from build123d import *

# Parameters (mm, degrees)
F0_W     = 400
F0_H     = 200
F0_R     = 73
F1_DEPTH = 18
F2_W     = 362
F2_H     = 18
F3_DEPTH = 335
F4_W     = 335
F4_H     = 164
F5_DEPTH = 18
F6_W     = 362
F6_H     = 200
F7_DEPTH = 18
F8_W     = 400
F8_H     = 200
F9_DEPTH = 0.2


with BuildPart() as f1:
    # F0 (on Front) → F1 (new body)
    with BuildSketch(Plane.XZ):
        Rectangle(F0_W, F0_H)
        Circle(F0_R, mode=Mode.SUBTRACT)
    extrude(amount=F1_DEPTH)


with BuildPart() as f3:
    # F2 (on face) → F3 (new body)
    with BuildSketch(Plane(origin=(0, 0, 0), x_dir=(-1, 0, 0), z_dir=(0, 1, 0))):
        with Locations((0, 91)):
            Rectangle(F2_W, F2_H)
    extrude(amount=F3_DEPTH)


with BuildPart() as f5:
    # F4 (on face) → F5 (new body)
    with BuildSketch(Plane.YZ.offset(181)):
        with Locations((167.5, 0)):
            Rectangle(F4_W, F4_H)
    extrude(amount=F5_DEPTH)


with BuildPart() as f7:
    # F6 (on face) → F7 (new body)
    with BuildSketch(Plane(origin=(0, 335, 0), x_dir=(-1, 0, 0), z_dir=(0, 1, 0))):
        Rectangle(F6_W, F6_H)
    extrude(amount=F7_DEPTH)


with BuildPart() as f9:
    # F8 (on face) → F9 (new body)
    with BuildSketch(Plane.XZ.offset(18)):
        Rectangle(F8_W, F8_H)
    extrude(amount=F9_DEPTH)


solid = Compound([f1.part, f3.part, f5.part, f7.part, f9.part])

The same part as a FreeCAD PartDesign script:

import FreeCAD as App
import Part
import Sketcher
from FreeCAD import Vector
Q = App.Units.Quantity

doc = App.newDocument("Part")
body = doc.addObject("PartDesign::Body", "Body")

# Sketch on XZ plane
sketch1 = body.newObject("Sketcher::SketchObject", "Sketch")
sketch1.AttachmentSupport = (doc.getObject("XZ_Plane"), [""])
sketch1.MapMode = "FlatFace"
sketch1.addGeometry(Part.LineSegment(Vector(-200, 100, 0), Vector(-200, -100, 0)), False)
sketch1.addGeometry(Part.LineSegment(Vector(-200, -100, 0), Vector(200, -100, 0)), False)
sketch1.addGeometry(Part.LineSegment(Vector(200, -100, 0), Vector(200, 100, 0)), False)
sketch1.addGeometry(Part.LineSegment(Vector(200, 100, 0), Vector(-200, 100, 0)), False)
sketch1.addGeometry(Part.Circle(Vector(0, 0, 0), Vector(0, 0, 1), 73), False)
sketch1.addConstraint(Sketcher.Constraint("Coincident", 0, 2, 1, 1))
sketch1.addConstraint(Sketcher.Constraint("Coincident", 1, 2, 2, 1))
sketch1.addConstraint(Sketcher.Constraint("Coincident", 2, 2, 3, 1))
sketch1.addConstraint(Sketcher.Constraint("Coincident", 3, 2, 0, 1))
sketch1.addConstraint(Sketcher.Constraint("Vertical", 0))
sketch1.addConstraint(Sketcher.Constraint("Horizontal", 1))
sketch1.addConstraint(Sketcher.Constraint("Vertical", 2))
sketch1.addConstraint(Sketcher.Constraint("Horizontal", 3))
sketch1.addConstraint(Sketcher.Constraint("Coincident", 4, 3, -1, 1))
sketch1.addConstraint(Sketcher.Constraint("Symmetric", 0, 2, 2, 2, -1, 1))
sketch1.addConstraint(Sketcher.Constraint("Diameter", 4, Q("146 mm")))
sketch1.addConstraint(Sketcher.Constraint("DistanceX", 1, 1, 1, 2, Q("400 mm")))
sketch1.addConstraint(Sketcher.Constraint("DistanceY", 0, 2, 0, 1, Q("200 mm")))
pad1 = body.newObject("PartDesign::Pad", "Pad")
pad1.Profile = sketch1
pad1.Length = 18
body2 = doc.addObject("PartDesign::Body", "Body001")

# Sketch on XZ plane
sketch2 = body2.newObject("Sketcher::SketchObject", "Sketch001")
sketch2.AttachmentSupport = (doc.getObject("XZ_Plane001"), [""])
sketch2.MapMode = "FlatFace"
sketch2.addGeometry(Part.LineSegment(Vector(181, 100, 0), Vector(181, 82, 0)), False)
sketch2.addGeometry(Part.LineSegment(Vector(181, 82, 0), Vector(-181, 82, 0)), False)
sketch2.addGeometry(Part.LineSegment(Vector(-181, 82, 0), Vector(-181, 100, 0)), False)
sketch2.addGeometry(Part.LineSegment(Vector(-181, 100, 0), Vector(181, 100, 0)), False)
sketch2.addConstraint(Sketcher.Constraint("Coincident", 0, 2, 1, 1))
sketch2.addConstraint(Sketcher.Constraint("Coincident", 1, 2, 2, 1))
sketch2.addConstraint(Sketcher.Constraint("Coincident", 2, 2, 3, 1))
sketch2.addConstraint(Sketcher.Constraint("Coincident", 3, 2, 0, 1))
sketch2.addConstraint(Sketcher.Constraint("Vertical", 0))
sketch2.addConstraint(Sketcher.Constraint("Horizontal", 1))
sketch2.addConstraint(Sketcher.Constraint("Vertical", 2))
sketch2.addConstraint(Sketcher.Constraint("Horizontal", 3))
sketch2.addConstraint(Sketcher.Constraint("DistanceX", 1, 2, 1, 1, Q("362 mm")))
sketch2.addConstraint(Sketcher.Constraint("DistanceY", 0, 2, 0, 1, Q("18 mm")))
sketch2.addConstraint(Sketcher.Constraint("DistanceX", -1, 1, 0, 2, Q("181 mm")))
sketch2.addConstraint(Sketcher.Constraint("DistanceY", -1, 1, 0, 2, Q("82 mm")))
pad2 = body2.newObject("PartDesign::Pad", "Pad001")
pad2.Profile = sketch2
pad2.Length = 335
pad2.Reversed = True
body3 = doc.addObject("PartDesign::Body", "Body002")

# Sketch on YZ plane
sketch3 = body3.newObject("Sketcher::SketchObject", "Sketch002")
sketch3.AttachmentSupport = (doc.getObject("YZ_Plane002"), [""])
sketch3.MapMode = "FlatFace"
sketch3.AttachmentOffset = App.Placement(Vector(0, 0, 181), App.Rotation())
sketch3.addGeometry(Part.LineSegment(Vector(0, 82, 0), Vector(0, -82, 0)), False)
sketch3.addGeometry(Part.LineSegment(Vector(0, -82, 0), Vector(335, -82, 0)), False)
sketch3.addGeometry(Part.LineSegment(Vector(335, -82, 0), Vector(335, 82, 0)), False)
sketch3.addGeometry(Part.LineSegment(Vector(335, 82, 0), Vector(0, 82, 0)), False)
sketch3.addConstraint(Sketcher.Constraint("Coincident", 0, 2, 1, 1))
sketch3.addConstraint(Sketcher.Constraint("Coincident", 1, 2, 2, 1))
sketch3.addConstraint(Sketcher.Constraint("Coincident", 2, 2, 3, 1))
sketch3.addConstraint(Sketcher.Constraint("Coincident", 3, 2, 0, 1))
sketch3.addConstraint(Sketcher.Constraint("Vertical", 0))
sketch3.addConstraint(Sketcher.Constraint("Horizontal", 1))
sketch3.addConstraint(Sketcher.Constraint("Vertical", 2))
sketch3.addConstraint(Sketcher.Constraint("Horizontal", 3))
sketch3.addConstraint(Sketcher.Constraint("Symmetric", 0, 2, 3, 2, -1, 1))
sketch3.addConstraint(Sketcher.Constraint("DistanceX", 1, 1, 1, 2, Q("335 mm")))
sketch3.addConstraint(Sketcher.Constraint("DistanceY", 0, 2, 0, 1, Q("164 mm")))
pad3 = body3.newObject("PartDesign::Pad", "Pad002")
pad3.Profile = sketch3
pad3.Length = 18
body4 = doc.addObject("PartDesign::Body", "Body003")

# Sketch on XZ plane
sketch4 = body4.newObject("Sketcher::SketchObject", "Sketch003")
sketch4.AttachmentSupport = (doc.getObject("XZ_Plane003"), [""])
sketch4.MapMode = "FlatFace"
sketch4.AttachmentOffset = App.Placement(Vector(0, 0, -335), App.Rotation())
sketch4.addGeometry(Part.LineSegment(Vector(181, 100, 0), Vector(181, -100, 0)), False)
sketch4.addGeometry(Part.LineSegment(Vector(181, -100, 0), Vector(-181, -100, 0)), False)
sketch4.addGeometry(Part.LineSegment(Vector(-181, -100, 0), Vector(-181, 100, 0)), False)
sketch4.addGeometry(Part.LineSegment(Vector(-181, 100, 0), Vector(181, 100, 0)), False)
sketch4.addConstraint(Sketcher.Constraint("Coincident", 0, 2, 1, 1))
sketch4.addConstraint(Sketcher.Constraint("Coincident", 1, 2, 2, 1))
sketch4.addConstraint(Sketcher.Constraint("Coincident", 2, 2, 3, 1))
sketch4.addConstraint(Sketcher.Constraint("Coincident", 3, 2, 0, 1))
sketch4.addConstraint(Sketcher.Constraint("Vertical", 0))
sketch4.addConstraint(Sketcher.Constraint("Horizontal", 1))
sketch4.addConstraint(Sketcher.Constraint("Vertical", 2))
sketch4.addConstraint(Sketcher.Constraint("Horizontal", 3))
sketch4.addConstraint(Sketcher.Constraint("Symmetric", 0, 2, 2, 2, -1, 1))
sketch4.addConstraint(Sketcher.Constraint("DistanceX", 1, 2, 1, 1, Q("362 mm")))
sketch4.addConstraint(Sketcher.Constraint("DistanceY", 0, 2, 0, 1, Q("200 mm")))
pad4 = body4.newObject("PartDesign::Pad", "Pad003")
pad4.Profile = sketch4
pad4.Length = 18
pad4.Reversed = True
body5 = doc.addObject("PartDesign::Body", "Body004")

# Sketch on XZ plane
sketch5 = body5.newObject("Sketcher::SketchObject", "Sketch004")
sketch5.AttachmentSupport = (doc.getObject("XZ_Plane004"), [""])
sketch5.MapMode = "FlatFace"
sketch5.AttachmentOffset = App.Placement(Vector(0, 0, 18), App.Rotation())
sketch5.addGeometry(Part.LineSegment(Vector(-200, 100, 0), Vector(-200, -100, 0)), False)
sketch5.addGeometry(Part.LineSegment(Vector(-200, -100, 0), Vector(200, -100, 0)), False)
sketch5.addGeometry(Part.LineSegment(Vector(200, -100, 0), Vector(200, 100, 0)), False)
sketch5.addGeometry(Part.LineSegment(Vector(200, 100, 0), Vector(-200, 100, 0)), False)
sketch5.addConstraint(Sketcher.Constraint("Coincident", 0, 2, 1, 1))
sketch5.addConstraint(Sketcher.Constraint("Coincident", 1, 2, 2, 1))
sketch5.addConstraint(Sketcher.Constraint("Coincident", 2, 2, 3, 1))
sketch5.addConstraint(Sketcher.Constraint("Coincident", 3, 2, 0, 1))
sketch5.addConstraint(Sketcher.Constraint("Vertical", 0))
sketch5.addConstraint(Sketcher.Constraint("Horizontal", 1))
sketch5.addConstraint(Sketcher.Constraint("Vertical", 2))
sketch5.addConstraint(Sketcher.Constraint("Horizontal", 3))
sketch5.addConstraint(Sketcher.Constraint("Symmetric", 0, 2, 2, 2, -1, 1))
sketch5.addConstraint(Sketcher.Constraint("DistanceX", 1, 1, 1, 2, Q("400 mm")))
sketch5.addConstraint(Sketcher.Constraint("DistanceY", 0, 2, 0, 1, Q("200 mm")))
pad5 = body5.newObject("PartDesign::Pad", "Pad004")
pad5.Profile = sketch5
pad5.Length = 0.2

doc.recompute()
